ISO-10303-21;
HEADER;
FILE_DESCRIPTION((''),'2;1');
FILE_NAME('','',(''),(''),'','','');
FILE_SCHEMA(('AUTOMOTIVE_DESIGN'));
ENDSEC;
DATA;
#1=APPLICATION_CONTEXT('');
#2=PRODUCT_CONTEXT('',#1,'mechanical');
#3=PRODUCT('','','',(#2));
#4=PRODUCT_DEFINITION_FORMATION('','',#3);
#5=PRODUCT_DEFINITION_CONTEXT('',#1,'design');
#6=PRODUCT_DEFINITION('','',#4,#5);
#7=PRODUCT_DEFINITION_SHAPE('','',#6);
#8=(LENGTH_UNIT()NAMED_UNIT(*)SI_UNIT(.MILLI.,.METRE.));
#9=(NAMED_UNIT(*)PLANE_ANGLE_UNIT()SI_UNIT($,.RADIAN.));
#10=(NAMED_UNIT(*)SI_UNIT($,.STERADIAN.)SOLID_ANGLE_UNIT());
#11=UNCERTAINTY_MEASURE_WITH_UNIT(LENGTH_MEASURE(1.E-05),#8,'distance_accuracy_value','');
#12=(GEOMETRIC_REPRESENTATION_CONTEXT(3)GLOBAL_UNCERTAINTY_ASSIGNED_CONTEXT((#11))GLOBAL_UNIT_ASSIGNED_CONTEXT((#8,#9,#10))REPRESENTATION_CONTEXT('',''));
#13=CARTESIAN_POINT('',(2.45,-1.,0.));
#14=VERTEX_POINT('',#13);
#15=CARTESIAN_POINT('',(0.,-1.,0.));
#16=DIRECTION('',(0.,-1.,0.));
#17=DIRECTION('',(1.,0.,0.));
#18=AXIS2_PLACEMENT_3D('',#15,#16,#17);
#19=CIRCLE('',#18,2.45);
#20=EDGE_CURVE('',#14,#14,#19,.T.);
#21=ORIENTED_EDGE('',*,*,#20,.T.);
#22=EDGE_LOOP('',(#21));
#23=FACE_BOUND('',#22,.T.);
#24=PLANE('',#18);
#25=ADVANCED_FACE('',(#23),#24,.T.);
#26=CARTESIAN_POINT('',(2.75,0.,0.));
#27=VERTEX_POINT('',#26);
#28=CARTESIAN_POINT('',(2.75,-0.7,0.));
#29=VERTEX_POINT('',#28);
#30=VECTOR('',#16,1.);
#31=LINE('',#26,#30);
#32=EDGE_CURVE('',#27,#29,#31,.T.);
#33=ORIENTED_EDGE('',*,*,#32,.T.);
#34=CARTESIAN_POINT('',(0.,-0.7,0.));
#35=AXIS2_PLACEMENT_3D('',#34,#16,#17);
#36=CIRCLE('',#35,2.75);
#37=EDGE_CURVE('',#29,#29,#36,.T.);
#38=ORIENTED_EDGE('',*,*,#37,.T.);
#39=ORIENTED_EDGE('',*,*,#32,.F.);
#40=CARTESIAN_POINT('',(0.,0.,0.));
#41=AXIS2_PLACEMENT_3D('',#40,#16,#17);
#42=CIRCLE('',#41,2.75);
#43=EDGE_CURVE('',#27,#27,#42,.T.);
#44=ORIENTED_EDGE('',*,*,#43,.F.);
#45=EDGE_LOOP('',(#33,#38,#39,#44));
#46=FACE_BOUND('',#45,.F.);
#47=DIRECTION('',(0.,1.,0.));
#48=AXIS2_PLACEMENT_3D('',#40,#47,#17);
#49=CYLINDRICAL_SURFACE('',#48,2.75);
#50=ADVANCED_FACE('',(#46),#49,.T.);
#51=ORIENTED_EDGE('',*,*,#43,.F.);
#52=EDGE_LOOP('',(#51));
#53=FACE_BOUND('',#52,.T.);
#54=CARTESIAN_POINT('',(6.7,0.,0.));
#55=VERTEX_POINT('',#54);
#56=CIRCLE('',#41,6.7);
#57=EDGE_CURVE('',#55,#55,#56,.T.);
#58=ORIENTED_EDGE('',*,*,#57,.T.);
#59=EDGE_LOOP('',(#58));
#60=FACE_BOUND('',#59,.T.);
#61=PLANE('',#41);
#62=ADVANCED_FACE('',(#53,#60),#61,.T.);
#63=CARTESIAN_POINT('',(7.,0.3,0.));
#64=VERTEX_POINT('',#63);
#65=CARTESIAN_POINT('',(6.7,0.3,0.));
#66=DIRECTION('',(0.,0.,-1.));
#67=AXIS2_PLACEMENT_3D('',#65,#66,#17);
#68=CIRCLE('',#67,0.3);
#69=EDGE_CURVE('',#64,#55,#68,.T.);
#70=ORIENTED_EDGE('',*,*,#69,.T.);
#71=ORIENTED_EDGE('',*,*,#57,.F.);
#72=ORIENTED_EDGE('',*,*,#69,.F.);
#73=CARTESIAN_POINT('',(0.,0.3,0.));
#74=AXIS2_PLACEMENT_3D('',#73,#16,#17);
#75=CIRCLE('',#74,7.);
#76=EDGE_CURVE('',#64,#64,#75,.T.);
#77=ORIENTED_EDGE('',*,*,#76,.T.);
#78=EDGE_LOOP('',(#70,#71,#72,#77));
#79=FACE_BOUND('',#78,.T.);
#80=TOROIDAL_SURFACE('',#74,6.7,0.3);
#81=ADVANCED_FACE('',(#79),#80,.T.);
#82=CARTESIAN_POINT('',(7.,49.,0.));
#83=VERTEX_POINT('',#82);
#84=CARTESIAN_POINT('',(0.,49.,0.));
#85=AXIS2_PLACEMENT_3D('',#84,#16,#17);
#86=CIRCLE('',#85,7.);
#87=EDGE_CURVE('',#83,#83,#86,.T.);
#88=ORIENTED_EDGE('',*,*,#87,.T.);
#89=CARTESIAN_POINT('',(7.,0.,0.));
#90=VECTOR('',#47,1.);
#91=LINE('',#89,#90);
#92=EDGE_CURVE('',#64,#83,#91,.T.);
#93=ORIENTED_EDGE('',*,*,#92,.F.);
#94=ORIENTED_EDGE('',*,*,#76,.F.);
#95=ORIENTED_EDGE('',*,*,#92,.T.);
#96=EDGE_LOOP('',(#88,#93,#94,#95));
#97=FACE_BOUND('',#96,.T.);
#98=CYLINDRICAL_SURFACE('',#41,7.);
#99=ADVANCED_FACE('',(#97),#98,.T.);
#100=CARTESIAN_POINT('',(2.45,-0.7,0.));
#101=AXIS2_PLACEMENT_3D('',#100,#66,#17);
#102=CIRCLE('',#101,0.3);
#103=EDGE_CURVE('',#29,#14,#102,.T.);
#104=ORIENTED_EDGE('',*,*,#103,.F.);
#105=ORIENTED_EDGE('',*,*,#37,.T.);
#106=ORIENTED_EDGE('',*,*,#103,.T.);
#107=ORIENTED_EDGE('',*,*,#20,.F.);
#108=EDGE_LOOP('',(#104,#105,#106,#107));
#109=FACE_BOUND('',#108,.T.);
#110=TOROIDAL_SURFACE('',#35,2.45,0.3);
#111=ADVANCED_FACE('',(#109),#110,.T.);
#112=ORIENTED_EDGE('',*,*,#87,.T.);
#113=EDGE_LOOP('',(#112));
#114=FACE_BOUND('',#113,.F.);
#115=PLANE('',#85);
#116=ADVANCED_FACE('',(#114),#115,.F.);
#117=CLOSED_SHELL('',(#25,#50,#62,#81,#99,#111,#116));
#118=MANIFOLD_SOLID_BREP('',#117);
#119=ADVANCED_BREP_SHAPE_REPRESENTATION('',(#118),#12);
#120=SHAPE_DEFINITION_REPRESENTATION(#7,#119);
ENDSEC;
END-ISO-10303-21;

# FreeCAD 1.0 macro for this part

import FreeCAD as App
import Part
import Sketcher
from FreeCAD import Vector


def edges_at(feature, points):
    """Names of the edges that pass closest to the given points."""
    edges = feature.Shape.Edges
    near = lambda p: min(range(len(edges)), key=lambda i: edges[i].distToShape(Part.Vertex(*p))[0])
    return sorted({f"Edge{near(p) + 1}" for p in points})

doc = App.newDocument("Part")
body = doc.addObject("PartDesign::Body", "Body")

sketch1 = body.newObject("Sketcher::SketchObject", "Sketch")
sketch1.AttachmentSupport = (doc.getObject("XZ_Plane"), [""])
sketch1.MapMode = "FlatFace"
sketch1.addGeometry(Part.Circle(Vector(0, 0, 0), Vector(0, 0, 1), 7), False)
sketch1.addConstraint([
    Sketcher.Constraint("Coincident", 0, 3, -1, 1),
    Sketcher.Constraint("Diameter", 0, 14.0),
])
pad1 = body.newObject("PartDesign::Pad", "Pad")
pad1.Profile = sketch1
pad1.Length = 49
pad1.Reversed = True

sketch2 = body.newObject("Sketcher::SketchObject", "Sketch001")
sketch2.AttachmentSupport = (doc.getObject("XZ_Plane"), [""])
sketch2.MapMode = "FlatFace"
sketch2.addGeometry(Part.Circle(Vector(0, 0, 0), Vector(0, 0, 1), 2.8), False)
sketch2.addConstraint([
    Sketcher.Constraint("Coincident", 0, 3, -1, 1),
    Sketcher.Constraint("Diameter", 0, 5.5),
])
pad2 = body.newObject("PartDesign::Pad", "Pad001")
pad2.Profile = sketch2
pad2.Length = 1
doc.recompute()

fillet = body.newObject("PartDesign::Fillet", "Fillet")
fillet.Base = (pad2, edges_at(pad2, [(-2.75, -1, 0), (-7, 0, 0)]))
fillet.Radius = 0.3

doc.recompute()
